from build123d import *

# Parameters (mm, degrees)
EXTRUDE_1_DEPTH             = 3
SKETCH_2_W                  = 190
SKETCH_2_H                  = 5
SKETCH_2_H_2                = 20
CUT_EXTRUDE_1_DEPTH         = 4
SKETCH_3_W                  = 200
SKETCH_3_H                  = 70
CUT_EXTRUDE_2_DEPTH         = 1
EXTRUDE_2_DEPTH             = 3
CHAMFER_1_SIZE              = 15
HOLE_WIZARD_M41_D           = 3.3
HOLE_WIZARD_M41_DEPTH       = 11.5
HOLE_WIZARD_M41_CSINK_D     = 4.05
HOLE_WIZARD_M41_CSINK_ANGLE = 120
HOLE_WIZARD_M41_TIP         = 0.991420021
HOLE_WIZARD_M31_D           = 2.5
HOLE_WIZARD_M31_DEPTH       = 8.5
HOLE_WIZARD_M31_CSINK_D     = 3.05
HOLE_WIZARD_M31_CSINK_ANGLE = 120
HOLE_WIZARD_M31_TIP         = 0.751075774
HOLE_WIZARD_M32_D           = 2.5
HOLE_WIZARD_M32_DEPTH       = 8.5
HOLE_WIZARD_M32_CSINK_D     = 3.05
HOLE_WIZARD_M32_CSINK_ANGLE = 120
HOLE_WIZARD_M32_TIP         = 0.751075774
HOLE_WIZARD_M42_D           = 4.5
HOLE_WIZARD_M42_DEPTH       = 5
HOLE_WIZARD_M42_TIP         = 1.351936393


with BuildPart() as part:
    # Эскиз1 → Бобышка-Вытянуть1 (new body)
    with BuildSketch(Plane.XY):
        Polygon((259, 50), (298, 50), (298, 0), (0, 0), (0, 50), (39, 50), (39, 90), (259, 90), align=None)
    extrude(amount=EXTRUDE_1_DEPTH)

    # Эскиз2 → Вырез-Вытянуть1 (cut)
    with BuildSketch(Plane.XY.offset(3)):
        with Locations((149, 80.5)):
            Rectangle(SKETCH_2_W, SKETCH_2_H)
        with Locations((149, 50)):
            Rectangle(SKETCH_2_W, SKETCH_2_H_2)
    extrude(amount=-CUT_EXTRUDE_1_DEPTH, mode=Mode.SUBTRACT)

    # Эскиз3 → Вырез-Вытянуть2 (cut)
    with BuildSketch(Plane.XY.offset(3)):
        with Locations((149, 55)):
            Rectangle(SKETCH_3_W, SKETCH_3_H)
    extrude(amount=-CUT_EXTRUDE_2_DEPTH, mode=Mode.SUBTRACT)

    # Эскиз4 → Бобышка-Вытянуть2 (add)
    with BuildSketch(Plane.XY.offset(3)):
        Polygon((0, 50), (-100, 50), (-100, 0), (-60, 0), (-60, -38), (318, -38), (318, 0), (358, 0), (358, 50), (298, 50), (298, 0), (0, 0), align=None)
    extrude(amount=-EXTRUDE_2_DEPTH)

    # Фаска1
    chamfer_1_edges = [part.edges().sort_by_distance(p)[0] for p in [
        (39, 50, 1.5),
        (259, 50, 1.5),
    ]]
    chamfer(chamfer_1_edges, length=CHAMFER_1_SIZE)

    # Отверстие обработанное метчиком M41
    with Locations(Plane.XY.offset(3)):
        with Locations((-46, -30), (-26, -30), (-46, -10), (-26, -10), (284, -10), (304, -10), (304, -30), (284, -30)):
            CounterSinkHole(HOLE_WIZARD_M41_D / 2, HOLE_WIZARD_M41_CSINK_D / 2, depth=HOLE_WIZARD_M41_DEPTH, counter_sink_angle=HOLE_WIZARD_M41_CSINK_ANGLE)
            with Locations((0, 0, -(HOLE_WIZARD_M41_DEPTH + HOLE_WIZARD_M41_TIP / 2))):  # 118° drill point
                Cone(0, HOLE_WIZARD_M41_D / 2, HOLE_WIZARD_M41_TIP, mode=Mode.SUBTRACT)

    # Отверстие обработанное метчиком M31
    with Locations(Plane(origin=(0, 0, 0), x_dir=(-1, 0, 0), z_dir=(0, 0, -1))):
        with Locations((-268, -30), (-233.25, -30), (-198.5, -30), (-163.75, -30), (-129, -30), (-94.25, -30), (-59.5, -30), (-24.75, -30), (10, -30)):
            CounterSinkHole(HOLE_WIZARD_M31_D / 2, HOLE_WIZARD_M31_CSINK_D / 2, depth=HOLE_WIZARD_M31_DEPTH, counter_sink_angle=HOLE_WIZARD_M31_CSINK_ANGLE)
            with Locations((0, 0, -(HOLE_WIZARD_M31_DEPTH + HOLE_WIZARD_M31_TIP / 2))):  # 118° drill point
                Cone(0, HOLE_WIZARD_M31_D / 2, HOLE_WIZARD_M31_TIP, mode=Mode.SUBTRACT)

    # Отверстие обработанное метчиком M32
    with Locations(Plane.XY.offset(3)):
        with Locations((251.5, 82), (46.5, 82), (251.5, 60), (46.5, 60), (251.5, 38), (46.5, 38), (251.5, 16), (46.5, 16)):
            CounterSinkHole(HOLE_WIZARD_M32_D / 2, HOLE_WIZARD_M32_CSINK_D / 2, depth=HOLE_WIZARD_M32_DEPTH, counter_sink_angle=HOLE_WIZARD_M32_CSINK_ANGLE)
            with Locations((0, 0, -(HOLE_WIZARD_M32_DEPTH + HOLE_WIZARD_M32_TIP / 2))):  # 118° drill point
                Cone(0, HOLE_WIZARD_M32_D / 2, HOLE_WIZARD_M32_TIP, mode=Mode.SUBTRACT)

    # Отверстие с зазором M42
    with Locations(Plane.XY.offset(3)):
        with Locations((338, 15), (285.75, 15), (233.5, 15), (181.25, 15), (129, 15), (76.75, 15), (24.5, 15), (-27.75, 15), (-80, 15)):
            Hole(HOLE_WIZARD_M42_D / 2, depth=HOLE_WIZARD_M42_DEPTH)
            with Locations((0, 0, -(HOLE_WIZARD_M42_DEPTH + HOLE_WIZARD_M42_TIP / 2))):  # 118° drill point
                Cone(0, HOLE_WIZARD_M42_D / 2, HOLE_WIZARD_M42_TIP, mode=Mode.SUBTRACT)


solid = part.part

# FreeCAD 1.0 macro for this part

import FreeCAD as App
import Part
import Sketcher


def edges_at(feature, points):
    """Names of the edges that pass closest to the given points."""
    edges = feature.Shape.Edges
    near = lambda p: min(range(len(edges)), key=lambda i: edges[i].distToShape(Part.Vertex(*p))[0])
    return sorted({f"Edge{near(p) + 1}" for p in points})

doc = App.newDocument("Part")
body = doc.addObject("PartDesign::Body", "Body")

sketch1 = doc.addObject("Sketcher::SketchObject", "Sketch")
body.addObject(sketch1)
sketch1.AttachmentSupport = (doc.XY_Plane, [""])
sketch1.MapMode = "FlatFace"
sketch1.addGeometry([
    Part.LineSegment(App.Vector(298, 50, 0), App.Vector(259, 50, 0)),
    Part.LineSegment(App.Vector(259, 50, 0), App.Vector(259, 90, 0)),
    Part.LineSegment(App.Vector(259, 90, 0), App.Vector(39, 90, 0)),
    Part.LineSegment(App.Vector(39, 90, 0), App.Vector(39, 50, 0)),
    Part.LineSegment(App.Vector(39, 50, 0), App.Vector(0, 50, 0)),
    Part.LineSegment(App.Vector(0, 50, 0), App.Vector(0, 0, 0)),
    Part.LineSegment(App.Vector(0, 0, 0), App.Vector(298, 0, 0)),
    Part.LineSegment(App.Vector(298, 0, 0), App.Vector(298, 50, 0)),
], False)
sketch1.addConstraint([
    Sketcher.Constraint("Coincident", 0, 2, 1, 1),
    Sketcher.Constraint("Coincident", 1, 2, 2, 1),
    Sketcher.Constraint("Coincident", 2, 2, 3, 1),
    Sketcher.Constraint("Coincident", 3, 2, 4, 1),
    Sketcher.Constraint("Coincident", 4, 2, 5, 1),
    Sketcher.Constraint("Coincident", 5, 2, 6, 1),
    Sketcher.Constraint("Coincident", 6, 2, 7, 1),
    Sketcher.Constraint("Coincident", 7, 2, 0, 1),
    Sketcher.Constraint("Horizontal", 0),
    Sketcher.Constraint("Vertical", 1),
    Sketcher.Constraint("Horizontal", 2),
    Sketcher.Constraint("Vertical", 3),
    Sketcher.Constraint("Horizontal", 4),
    Sketcher.Constraint("Vertical", 5),
    Sketcher.Constraint("Horizontal", 6),
    Sketcher.Constraint("Vertical", 7),
    Sketcher.Constraint("Coincident", 5, 2, -1, 1),
    Sketcher.Constraint("Horizontal", 0, 2, 3, 2),
    Sketcher.Constraint("Equal", 0, 4),
    Sketcher.Constraint("DistanceX", 0, 2, 0, 1, 39.0),
    Sketcher.Constraint("DistanceX", 2, 2, 2, 1, 220.0),
    Sketcher.Constraint("DistanceY", 1, 1, 1, 2, 40.0),
    Sketcher.Constraint("DistanceY", 5, 2, 5, 1, 50.0),
])
pad1 = doc.addObject("PartDesign::Pad", "Pad")
body.addObject(pad1)
pad1.Profile = sketch1
pad1.Length = 3

sketch2 = doc.addObject("Sketcher::SketchObject", "Sketch001")
body.addObject(sketch2)
sketch2.AttachmentSupport = (doc.XY_Plane, [""])
sketch2.MapMode = "FlatFace"
sketch2.AttachmentOffset = App.Placement(App.Vector(0, 0, 3), App.Rotation())
sketch2.addGeometry([
    Part.LineSegment(App.Vector(54, 83, 0), App.Vector(54, 78, 0)),
    Part.LineSegment(App.Vector(54, 78, 0), App.Vector(244, 78, 0)),
    Part.LineSegment(App.Vector(244, 78, 0), App.Vector(244, 83, 0)),
    Part.LineSegment(App.Vector(244, 83, 0), App.Vector(54, 83, 0)),
    Part.LineSegment(App.Vector(54, 60, 0), App.Vector(54, 40, 0)),
    Part.LineSegment(App.Vector(54, 40, 0), App.Vector(244, 40, 0)),
    Part.LineSegment(App.Vector(244, 40, 0), App.Vector(244, 60, 0)),
    Part.LineSegment(App.Vector(244, 60, 0), App.Vector(54, 60, 0)),
], False)
sketch2.addConstraint([
    Sketcher.Constraint("Coincident", 0, 2, 1, 1),
    Sketcher.Constraint("Coincident", 1, 2, 2, 1),
    Sketcher.Constraint("Coincident", 2, 2, 3, 1),
    Sketcher.Constraint("Coincident", 3, 2, 0, 1),
    Sketcher.Constraint("Coincident", 4, 2, 5, 1),
    Sketcher.Constraint("Coincident", 5, 2, 6, 1),
    Sketcher.Constraint("Coincident", 6, 2, 7, 1),
    Sketcher.Constraint("Coincident", 7, 2, 4, 1),
    Sketcher.Constraint("Vertical", 0),
    Sketcher.Constraint("Horizontal", 1),
    Sketcher.Constraint("Vertical", 2),
    Sketcher.Constraint("Horizontal", 3),
    Sketcher.Constraint("Vertical", 4),
    Sketcher.Constraint("Horizontal", 5),
    Sketcher.Constraint("Vertical", 6),
    Sketcher.Constraint("Horizontal", 7),
    Sketcher.Constraint("Vertical", 3, 2, 4, 2),
    Sketcher.Constraint("Vertical", 2, 2, 5, 2),
    Sketcher.Constraint("DistanceX", 1, 1, 1, 2, 190.0),
    Sketcher.Constraint("DistanceY", 0, 2, 0, 1, 5.0),
    Sketcher.Constraint("DistanceY", 4, 2, 4, 1, 20.0),
    Sketcher.Constraint("DistanceX", -1, 1, 0, 2, 54.0),
    Sketcher.Constraint("DistanceY", -1, 1, 0, 2, 78.0),
    Sketcher.Constraint("DistanceY", -1, 1, 4, 2, 40.0),
])
pocket1 = doc.addObject("PartDesign::Pocket", "Pocket")
body.addObject(pocket1)
pocket1.Profile = sketch2
pocket1.Length = 4

sketch3 = doc.addObject("Sketcher::SketchObject", "Sketch002")
body.addObject(sketch3)
sketch3.AttachmentSupport = (doc.XY_Plane, [""])
sketch3.MapMode = "FlatFace"
sketch3.AttachmentOffset = App.Placement(App.Vector(0, 0, 3), App.Rotation())
sketch3.addGeometry([
    Part.LineSegment(App.Vector(49, 90, 0), App.Vector(49, 20, 0)),
    Part.LineSegment(App.Vector(49, 20, 0), App.Vector(249, 20, 0)),
    Part.LineSegment(App.Vector(249, 20, 0), App.Vector(249, 90, 0)),
    Part.LineSegment(App.Vector(249, 90, 0), App.Vector(49, 90, 0)),
], False)
sketch3.addConstraint([
    Sketcher.Constraint("Coincident", 0, 2, 1, 1),
    Sketcher.Constraint("Coincident", 1, 2, 2, 1),
    Sketcher.Constraint("Coincident", 2, 2, 3, 1),
    Sketcher.Constraint("Coincident", 3, 2, 0, 1),
    Sketcher.Constraint("Vertical", 0),
    Sketcher.Constraint("Horizontal", 1),
    Sketcher.Constraint("Vertical", 2),
    Sketcher.Constraint("Horizontal", 3),
    Sketcher.Constraint("DistanceX", 1, 1, 1, 2, 200.0),
    Sketcher.Constraint("DistanceY", 0, 2, 0, 1, 70.0),
    Sketcher.Constraint("DistanceX", -1, 1, 0, 2, 49.0),
    Sketcher.Constraint("DistanceY", -1, 1, 0, 2, 20.0),
])
pocket2 = doc.addObject("PartDesign::Pocket", "Pocket001")
body.addObject(pocket2)
pocket2.Profile = sketch3
pocket2.Length = 1

sketch4 = doc.addObject("Sketcher::SketchObject", "Sketch003")
body.addObject(sketch4)
sketch4.AttachmentSupport = (doc.XY_Plane, [""])
sketch4.MapMode = "FlatFace"
sketch4.AttachmentOffset = App.Placement(App.Vector(0, 0, 3), App.Rotation())
sketch4.addGeometry([
    Part.LineSegment(App.Vector(0, 50, 0), App.Vector(-100, 50, 0)),
    Part.LineSegment(App.Vector(-100, 50, 0), App.Vector(-100, 0, 0)),
    Part.LineSegment(App.Vector(-100, 0, 0), App.Vector(-60, 0, 0)),
    Part.LineSegment(App.Vector(-60, 0, 0), App.Vector(-60, -38, 0)),
    Part.LineSegment(App.Vector(-60, -38, 0), App.Vector(318, -38, 0)),
    Part.LineSegment(App.Vector(318, -38, 0), App.Vector(318, 0, 0)),
    Part.LineSegment(App.Vector(318, 0, 0), App.Vector(358, 0, 0)),
    Part.LineSegment(App.Vector(358, 0, 0), App.Vector(358, 50, 0)),
    Part.LineSegment(App.Vector(358, 50, 0), App.Vector(298, 50, 0)),
    Part.LineSegment(App.Vector(298, 50, 0), App.Vector(298, 0, 0)),
    Part.LineSegment(App.Vector(298, 0, 0), App.Vector(0, 0, 0)),
    Part.LineSegment(App.Vector(0, 0, 0), App.Vector(0, 50, 0)),
], False)
sketch4.addConstraint([
    Sketcher.Constraint("Coincident", 0, 2, 1, 1),
    Sketcher.Constraint("Coincident", 1, 2, 2, 1),
    Sketcher.Constraint("Coincident", 2, 2, 3, 1),
    Sketcher.Constraint("Coincident", 3, 2, 4, 1),
    Sketcher.Constraint("Coincident", 4, 2, 5, 1),
    Sketcher.Constraint("Coincident", 5, 2, 6, 1),
    Sketcher.Constraint("Coincident", 6, 2, 7, 1),
    Sketcher.Constraint("Coincident", 7, 2, 8, 1),
    Sketcher.Constraint("Coincident", 8, 2, 9, 1),
    Sketcher.Constraint("Coincident", 9, 2, 10, 1),
    Sketcher.Constraint("Coincident", 10, 2, 11, 1),
    Sketcher.Constraint("Coincident", 11, 2, 0, 1),
    Sketcher.Constraint("Horizontal", 0),
    Sketcher.Constraint("Vertical", 1),
    Sketcher.Constraint("Horizontal", 2),
    Sketcher.Constraint("Vertical", 3),
    Sketcher.Constraint("Horizontal", 4),
    Sketcher.Constraint("Vertical", 5),
    Sketcher.Constraint("Horizontal", 6),
    Sketcher.Constraint("Vertical", 7),
    Sketcher.Constraint("Horizontal", 8),
    Sketcher.Constraint("Vertical", 9),
    Sketcher.Constraint("Horizontal", 10),
    Sketcher.Constraint("Vertical", 11),
    Sketcher.Constraint("Coincident", 10, 2, -1, 1),
    Sketcher.Constraint("PointOnObject", 1, 2, -1),
    Sketcher.Constraint("PointOnObject", 5, 2, -1),
    Sketcher.Constraint("Horizontal", 0, 2, 7, 2),
    Sketcher.Constraint("Equal", 2, 6),
    Sketcher.Constraint("DistanceX", 0, 2, 0, 1, 100.0),
    Sketcher.Constraint("DistanceX", 2, 1, 2, 2, 40.0),
    Sketcher.Constraint("DistanceX", 4, 1, 4, 2, 378.0),
    Sketcher.Constraint("DistanceX", 8, 2, 8, 1, 60.0),
    Sketcher.Constraint("DistanceY", 1, 2, 1, 1, 50.0),
    Sketcher.Constraint("DistanceY", 3, 2, 3, 1, 38.0),
])
pad2 = doc.addObject("PartDesign::Pad", "Pad001")
body.addObject(pad2)
pad2.Profile = sketch4
pad2.Length = 3
pad2.Reversed = True
doc.recompute()

chamfer = doc.addObject("PartDesign::Chamfer", "Chamfer")
body.addObject(chamfer)
chamfer.Base = (pad2, edges_at(pad2, [(39, 50, 1.5), (259, 50, 1.5)]))
chamfer.Size = 15

sketch5 = doc.addObject("Sketcher::SketchObject", "Sketch004")
body.addObject(sketch5)
sketch5.AttachmentSupport = (doc.XY_Plane, [""])
sketch5.MapMode = "FlatFace"
sketch5.AttachmentOffset = App.Placement(App.Vector(0, 0, 3), App.Rotation())
sketch5.addGeometry([
    Part.Circle(App.Vector(-46, -30, 0), App.Vector(0, 0, 1), 1.6),
    Part.Circle(App.Vector(-26, -30, 0), App.Vector(0, 0, 1), 1.6),
    Part.Circle(App.Vector(-46, -10, 0), App.Vector(0, 0, 1), 1.6),
    Part.Circle(App.Vector(-26, -10, 0), App.Vector(0, 0, 1), 1.6),
    Part.Circle(App.Vector(284, -10, 0), App.Vector(0, 0, 1), 1.6),
    Part.Circle(App.Vector(304, -10, 0), App.Vector(0, 0, 1), 1.6),
    Part.Circle(App.Vector(304, -30, 0), App.Vector(0, 0, 1), 1.6),
    Part.Circle(App.Vector(284, -30, 0), App.Vector(0, 0, 1), 1.6),
], False)
sketch5.addConstraint([
    Sketcher.Constraint("Equal", 0, 1),
    Sketcher.Constraint("Equal", 1, 2),
    Sketcher.Constraint("Equal", 2, 3),
    Sketcher.Constraint("Equal", 3, 4),
    Sketcher.Constraint("Equal", 4, 5),
    Sketcher.Constraint("Equal", 5, 6),
    Sketcher.Constraint("Equal", 6, 7),
    Sketcher.Constraint("Horizontal", 0, 3, 1, 3),
    Sketcher.Constraint("Horizontal", 2, 3, 3, 3),
    Sketcher.Constraint("Horizontal", 3, 3, 4, 3),
    Sketcher.Constraint("Horizontal", 4, 3, 5, 3),
    Sketcher.Constraint("Horizontal", 1, 3, 6, 3),
    Sketcher.Constraint("Horizontal", 6, 3, 7, 3),
    Sketcher.Constraint("Vertical", 0, 3, 2, 3),
    Sketcher.Constraint("Vertical", 1, 3, 3, 3),
    Sketcher.Constraint("Vertical", 5, 3, 6, 3),
    Sketcher.Constraint("Vertical", 4, 3, 7, 3),
    Sketcher.Constraint("Diameter", 0, 3.3),
    Sketcher.Constraint("DistanceX", 0, 3, -1, 1, 46.0),
    Sketcher.Constraint("DistanceY", 0, 3, -1, 1, 30.0),
    Sketcher.Constraint("DistanceX", 1, 3, -1, 1, 26.0),
    Sketcher.Constraint("DistanceY", 2, 3, -1, 1, 10.0),
    Sketcher.Constraint("DistanceX", -1, 1, 4, 3, 284.0),
    Sketcher.Constraint("DistanceX", -1, 1, 5, 3, 304.0),
])
doc.recompute()
hole = doc.addObject("PartDesign::Hole", "Hole")
body.addObject(hole)
hole.Profile = sketch5
hole.ThreadType = "None"
hole.Diameter = 3.3
hole.DepthType = "Dimension"
hole.Depth = 11.5
hole.DrillPoint = "Angled"
hole.DrillPointAngle = 118
hole.HoleCutType = "Countersink"
hole.HoleCutDiameter = 4.05
hole.HoleCutCountersinkAngle = 120

sketch6 = doc.addObject("Sketcher::SketchObject", "Sketch005")
body.addObject(sketch6)
sketch6.AttachmentSupport = (doc.XY_Plane, [""])
sketch6.MapMode = "FlatFace"
sketch6.addGeometry([
    Part.Circle(App.Vector(268, -30, 0), App.Vector(0, 0, 1), 1.2),
    Part.Circle(App.Vector(233.2, -30, 0), App.Vector(0, 0, 1), 1.2),
    Part.Circle(App.Vector(198.5, -30, 0), App.Vector(0, 0, 1), 1.2),
    Part.Circle(App.Vector(163.8, -30, 0), App.Vector(0, 0, 1), 1.2),
    Part.Circle(App.Vector(129, -30, 0), App.Vector(0, 0, 1), 1.2),
    Part.Circle(App.Vector(94.2, -30, 0), App.Vector(0, 0, 1), 1.2),
    Part.Circle(App.Vector(59.5, -30, 0), App.Vector(0, 0, 1), 1.2),
    Part.Circle(App.Vector(24.8, -30, 0), App.Vector(0, 0, 1), 1.2),
    Part.Circle(App.Vector(-10, -30, 0), App.Vector(0, 0, 1), 1.2),
], False)
sketch6.addConstraint([
    Sketcher.Constraint("Equal", 0, 1),
    Sketcher.Constraint("Equal", 1, 2),
    Sketcher.Constraint("Equal", 2, 3),
    Sketcher.Constraint("Equal", 3, 4),
    Sketcher.Constraint("Equal", 4, 5),
    Sketcher.Constraint("Equal", 5, 6),
    Sketcher.Constraint("Equal", 6, 7),
    Sketcher.Constraint("Equal", 7, 8),
    Sketcher.Constraint("Horizontal", 0, 3, 1, 3),
    Sketcher.Constraint("Horizontal", 1, 3, 2, 3),
    Sketcher.Constraint("Horizontal", 2, 3, 3, 3),
    Sketcher.Constraint("Horizontal", 3, 3, 4, 3),
    Sketcher.Constraint("Horizontal", 4, 3, 5, 3),
    Sketcher.Constraint("Horizontal", 5, 3, 6, 3),
    Sketcher.Constraint("Horizontal", 6, 3, 7, 3),
    Sketcher.Constraint("Horizontal", 7, 3, 8, 3),
    Sketcher.Constraint("Diameter", 0, 2.5),
    Sketcher.Constraint("DistanceX", -1, 1, 0, 3, 268.0),
    Sketcher.Constraint("DistanceY", 0, 3, -1, 1, 30.0),
    Sketcher.Constraint("DistanceX", -1, 1, 4, 3, 129.0),
    Sketcher.Constraint("DistanceX", 8, 3, -1, 1, 10.0),
    Sketcher.Constraint("DistanceX", 5, 3, 1, 3, 139.0),
    Sketcher.Constraint("DistanceX", 6, 3, 2, 3, 139.0),
    Sketcher.Constraint("DistanceX", 7, 3, 3, 3, 139.0),
    Sketcher.Constraint("DistanceX", -1, 1, 2, 3, 198.5),
    Sketcher.Constraint("DistanceX", 3, 3, 1, 3, 69.5),
    Sketcher.Constraint("DistanceX", -1, 1, 1, 3, 233.25),
])
doc.recompute()
hole2 = doc.addObject("PartDesign::Hole", "Hole001")
body.addObject(hole2)
hole2.Profile = sketch6
hole2.ThreadType = "None"
hole2.Diameter = 2.5
hole2.DepthType = "Dimension"
hole2.Depth = 8.5
hole2.DrillPoint = "Angled"
hole2.DrillPointAngle = 118
hole2.HoleCutType = "Countersink"
hole2.HoleCutDiameter = 3.05
hole2.HoleCutCountersinkAngle = 120
hole2.Reversed = True

sketch7 = doc.addObject("Sketcher::SketchObject", "Sketch006")
body.addObject(sketch7)
sketch7.AttachmentSupport = (doc.XY_Plane, [""])
sketch7.MapMode = "FlatFace"
sketch7.AttachmentOffset = App.Placement(App.Vector(0, 0, 3), App.Rotation())
sketch7.addGeometry([
    Part.Circle(App.Vector(251.5, 82, 0), App.Vector(0, 0, 1), 1.2),
    Part.Circle(App.Vector(46.5, 82, 0), App.Vector(0, 0, 1), 1.2),
    Part.Circle(App.Vector(251.5, 60, 0), App.Vector(0, 0, 1), 1.2),
    Part.Circle(App.Vector(46.5, 60, 0), App.Vector(0, 0, 1), 1.2),
    Part.Circle(App.Vector(251.5, 38, 0), App.Vector(0, 0, 1), 1.2),
    Part.Circle(App.Vector(46.5, 38, 0), App.Vector(0, 0, 1), 1.2),
    Part.Circle(App.Vector(251.5, 16, 0), App.Vector(0, 0, 1), 1.2),
    Part.Circle(App.Vector(46.5, 16, 0), App.Vector(0, 0, 1), 1.2),
], False)
sketch7.addConstraint([
    Sketcher.Constraint("Equal", 0, 1),
    Sketcher.Constraint("Equal", 1, 2),
    Sketcher.Constraint("Equal", 2, 3),
    Sketcher.Constraint("Equal", 3, 4),
    Sketcher.Constraint("Equal", 4, 5),
    Sketcher.Constraint("Equal", 5, 6),
    Sketcher.Constraint("Equal", 6, 7),
    Sketcher.Constraint("Horizontal", 0, 3, 1, 3),
    Sketcher.Constraint("Horizontal", 2, 3, 3, 3),
    Sketcher.Constraint("Horizontal", 4, 3, 5, 3),
    Sketcher.Constraint("Horizontal", 6, 3, 7, 3),
    Sketcher.Constraint("Vertical", 0, 3, 2, 3),
    Sketcher.Constraint("Vertical", 1, 3, 3, 3),
    Sketcher.Constraint("Vertical", 2, 3, 4, 3),
    Sketcher.Constraint("Vertical", 3, 3, 5, 3),
    Sketcher.Constraint("Vertical", 4, 3, 6, 3),
    Sketcher.Constraint("Vertical", 5, 3, 7, 3),
    Sketcher.Constraint("Diameter", 0, 2.5),
    Sketcher.Constraint("DistanceY", -1, 1, 0, 3, 82.0),
    Sketcher.Constraint("DistanceY", -1, 1, 2, 3, 60.0),
    Sketcher.Constraint("DistanceY", -1, 1, 4, 3, 38.0),
    Sketcher.Constraint("DistanceY", -1, 1, 6, 3, 16.0),
    Sketcher.Constraint("DistanceX", 1, 3, 0, 3, 205.0),
    Sketcher.Constraint("DistanceX", -1, 1, 0, 3, 251.5),
])
doc.recompute()
hole3 = doc.addObject("PartDesign::Hole", "Hole002")
body.addObject(hole3)
hole3.Profile = sketch7
hole3.ThreadType = "None"
hole3.Diameter = 2.5
hole3.DepthType = "Dimension"
hole3.Depth = 8.5
hole3.DrillPoint = "Angled"
hole3.DrillPointAngle = 118
hole3.HoleCutType = "Countersink"
hole3.HoleCutDiameter = 3.05
hole3.HoleCutCountersinkAngle = 120

sketch8 = doc.addObject("Sketcher::SketchObject", "Sketch007")
body.addObject(sketch8)
sketch8.AttachmentSupport = (doc.XY_Plane, [""])
sketch8.MapMode = "FlatFace"
sketch8.AttachmentOffset = App.Placement(App.Vector(0, 0, 3), App.Rotation())
sketch8.addGeometry([
    Part.Circle(App.Vector(338, 15, 0), App.Vector(0, 0, 1), 2.2),
    Part.Circle(App.Vector(285.8, 15, 0), App.Vector(0, 0, 1), 2.2),
    Part.Circle(App.Vector(233.5, 15, 0), App.Vector(0, 0, 1), 2.2),
    Part.Circle(App.Vector(181.2, 15, 0), App.Vector(0, 0, 1), 2.2),
    Part.Circle(App.Vector(129, 15, 0), App.Vector(0, 0, 1), 2.2),
    Part.Circle(App.Vector(76.8, 15, 0), App.Vector(0, 0, 1), 2.2),
    Part.Circle(App.Vector(24.5, 15, 0), App.Vector(0, 0, 1), 2.2),
    Part.Circle(App.Vector(-27.8, 15, 0), App.Vector(0, 0, 1), 2.2),
    Part.Circle(App.Vector(-80, 15, 0), App.Vector(0, 0, 1), 2.2),
], False)
sketch8.addConstraint([
    Sketcher.Constraint("Equal", 0, 1),
    Sketcher.Constraint("Equal", 1, 2),
    Sketcher.Constraint("Equal", 2, 3),
    Sketcher.Constraint("Equal", 3, 4),
    Sketcher.Constraint("Equal", 4, 5),
    Sketcher.Constraint("Equal", 5, 6),
    Sketcher.Constraint("Equal", 6, 7),
    Sketcher.Constraint("Equal", 7, 8),
    Sketcher.Constraint("Horizontal", 0, 3, 1, 3),
    Sketcher.Constraint("Horizontal", 1, 3, 2, 3),
    Sketcher.Constraint("Horizontal", 2, 3, 3, 3),
    Sketcher.Constraint("Horizontal", 3, 3, 4, 3),
    Sketcher.Constraint("Horizontal", 4, 3, 5, 3),
    Sketcher.Constraint("Horizontal", 5, 3, 6, 3),
    Sketcher.Constraint("Horizontal", 6, 3, 7, 3),
    Sketcher.Constraint("Horizontal", 7, 3, 8, 3),
    Sketcher.Constraint("Diameter", 0, 4.5),
    Sketcher.Constraint("DistanceX", -1, 1, 0, 3, 338.0),
    Sketcher.Constraint("DistanceY", -1, 1, 0, 3, 15.0),
    Sketcher.Constraint("DistanceX", -1, 1, 4, 3, 129.0),
    Sketcher.Constraint("DistanceX", 8, 3, -1, 1, 80.0),
    Sketcher.Constraint("DistanceX", 5, 3, 1, 3, 209.0),
    Sketcher.Constraint("DistanceX", 6, 3, 2, 3, 209.0),
    Sketcher.Constraint("DistanceX", 7, 3, 3, 3, 209.0),
    Sketcher.Constraint("DistanceX", -1, 1, 2, 3, 233.5),
    Sketcher.Constraint("DistanceX", 3, 3, 1, 3, 104.5),
    Sketcher.Constraint("DistanceX", -1, 1, 1, 3, 285.75),
])
doc.recompute()
hole4 = doc.addObject("PartDesign::Hole", "Hole003")
body.addObject(hole4)
hole4.Profile = sketch8
hole4.ThreadType = "None"
hole4.Diameter = 4.5
hole4.DepthType = "Dimension"
hole4.Depth = 5
hole4.DrillPoint = "Angled"
hole4.DrillPointAngle = 118

doc.recompute()
